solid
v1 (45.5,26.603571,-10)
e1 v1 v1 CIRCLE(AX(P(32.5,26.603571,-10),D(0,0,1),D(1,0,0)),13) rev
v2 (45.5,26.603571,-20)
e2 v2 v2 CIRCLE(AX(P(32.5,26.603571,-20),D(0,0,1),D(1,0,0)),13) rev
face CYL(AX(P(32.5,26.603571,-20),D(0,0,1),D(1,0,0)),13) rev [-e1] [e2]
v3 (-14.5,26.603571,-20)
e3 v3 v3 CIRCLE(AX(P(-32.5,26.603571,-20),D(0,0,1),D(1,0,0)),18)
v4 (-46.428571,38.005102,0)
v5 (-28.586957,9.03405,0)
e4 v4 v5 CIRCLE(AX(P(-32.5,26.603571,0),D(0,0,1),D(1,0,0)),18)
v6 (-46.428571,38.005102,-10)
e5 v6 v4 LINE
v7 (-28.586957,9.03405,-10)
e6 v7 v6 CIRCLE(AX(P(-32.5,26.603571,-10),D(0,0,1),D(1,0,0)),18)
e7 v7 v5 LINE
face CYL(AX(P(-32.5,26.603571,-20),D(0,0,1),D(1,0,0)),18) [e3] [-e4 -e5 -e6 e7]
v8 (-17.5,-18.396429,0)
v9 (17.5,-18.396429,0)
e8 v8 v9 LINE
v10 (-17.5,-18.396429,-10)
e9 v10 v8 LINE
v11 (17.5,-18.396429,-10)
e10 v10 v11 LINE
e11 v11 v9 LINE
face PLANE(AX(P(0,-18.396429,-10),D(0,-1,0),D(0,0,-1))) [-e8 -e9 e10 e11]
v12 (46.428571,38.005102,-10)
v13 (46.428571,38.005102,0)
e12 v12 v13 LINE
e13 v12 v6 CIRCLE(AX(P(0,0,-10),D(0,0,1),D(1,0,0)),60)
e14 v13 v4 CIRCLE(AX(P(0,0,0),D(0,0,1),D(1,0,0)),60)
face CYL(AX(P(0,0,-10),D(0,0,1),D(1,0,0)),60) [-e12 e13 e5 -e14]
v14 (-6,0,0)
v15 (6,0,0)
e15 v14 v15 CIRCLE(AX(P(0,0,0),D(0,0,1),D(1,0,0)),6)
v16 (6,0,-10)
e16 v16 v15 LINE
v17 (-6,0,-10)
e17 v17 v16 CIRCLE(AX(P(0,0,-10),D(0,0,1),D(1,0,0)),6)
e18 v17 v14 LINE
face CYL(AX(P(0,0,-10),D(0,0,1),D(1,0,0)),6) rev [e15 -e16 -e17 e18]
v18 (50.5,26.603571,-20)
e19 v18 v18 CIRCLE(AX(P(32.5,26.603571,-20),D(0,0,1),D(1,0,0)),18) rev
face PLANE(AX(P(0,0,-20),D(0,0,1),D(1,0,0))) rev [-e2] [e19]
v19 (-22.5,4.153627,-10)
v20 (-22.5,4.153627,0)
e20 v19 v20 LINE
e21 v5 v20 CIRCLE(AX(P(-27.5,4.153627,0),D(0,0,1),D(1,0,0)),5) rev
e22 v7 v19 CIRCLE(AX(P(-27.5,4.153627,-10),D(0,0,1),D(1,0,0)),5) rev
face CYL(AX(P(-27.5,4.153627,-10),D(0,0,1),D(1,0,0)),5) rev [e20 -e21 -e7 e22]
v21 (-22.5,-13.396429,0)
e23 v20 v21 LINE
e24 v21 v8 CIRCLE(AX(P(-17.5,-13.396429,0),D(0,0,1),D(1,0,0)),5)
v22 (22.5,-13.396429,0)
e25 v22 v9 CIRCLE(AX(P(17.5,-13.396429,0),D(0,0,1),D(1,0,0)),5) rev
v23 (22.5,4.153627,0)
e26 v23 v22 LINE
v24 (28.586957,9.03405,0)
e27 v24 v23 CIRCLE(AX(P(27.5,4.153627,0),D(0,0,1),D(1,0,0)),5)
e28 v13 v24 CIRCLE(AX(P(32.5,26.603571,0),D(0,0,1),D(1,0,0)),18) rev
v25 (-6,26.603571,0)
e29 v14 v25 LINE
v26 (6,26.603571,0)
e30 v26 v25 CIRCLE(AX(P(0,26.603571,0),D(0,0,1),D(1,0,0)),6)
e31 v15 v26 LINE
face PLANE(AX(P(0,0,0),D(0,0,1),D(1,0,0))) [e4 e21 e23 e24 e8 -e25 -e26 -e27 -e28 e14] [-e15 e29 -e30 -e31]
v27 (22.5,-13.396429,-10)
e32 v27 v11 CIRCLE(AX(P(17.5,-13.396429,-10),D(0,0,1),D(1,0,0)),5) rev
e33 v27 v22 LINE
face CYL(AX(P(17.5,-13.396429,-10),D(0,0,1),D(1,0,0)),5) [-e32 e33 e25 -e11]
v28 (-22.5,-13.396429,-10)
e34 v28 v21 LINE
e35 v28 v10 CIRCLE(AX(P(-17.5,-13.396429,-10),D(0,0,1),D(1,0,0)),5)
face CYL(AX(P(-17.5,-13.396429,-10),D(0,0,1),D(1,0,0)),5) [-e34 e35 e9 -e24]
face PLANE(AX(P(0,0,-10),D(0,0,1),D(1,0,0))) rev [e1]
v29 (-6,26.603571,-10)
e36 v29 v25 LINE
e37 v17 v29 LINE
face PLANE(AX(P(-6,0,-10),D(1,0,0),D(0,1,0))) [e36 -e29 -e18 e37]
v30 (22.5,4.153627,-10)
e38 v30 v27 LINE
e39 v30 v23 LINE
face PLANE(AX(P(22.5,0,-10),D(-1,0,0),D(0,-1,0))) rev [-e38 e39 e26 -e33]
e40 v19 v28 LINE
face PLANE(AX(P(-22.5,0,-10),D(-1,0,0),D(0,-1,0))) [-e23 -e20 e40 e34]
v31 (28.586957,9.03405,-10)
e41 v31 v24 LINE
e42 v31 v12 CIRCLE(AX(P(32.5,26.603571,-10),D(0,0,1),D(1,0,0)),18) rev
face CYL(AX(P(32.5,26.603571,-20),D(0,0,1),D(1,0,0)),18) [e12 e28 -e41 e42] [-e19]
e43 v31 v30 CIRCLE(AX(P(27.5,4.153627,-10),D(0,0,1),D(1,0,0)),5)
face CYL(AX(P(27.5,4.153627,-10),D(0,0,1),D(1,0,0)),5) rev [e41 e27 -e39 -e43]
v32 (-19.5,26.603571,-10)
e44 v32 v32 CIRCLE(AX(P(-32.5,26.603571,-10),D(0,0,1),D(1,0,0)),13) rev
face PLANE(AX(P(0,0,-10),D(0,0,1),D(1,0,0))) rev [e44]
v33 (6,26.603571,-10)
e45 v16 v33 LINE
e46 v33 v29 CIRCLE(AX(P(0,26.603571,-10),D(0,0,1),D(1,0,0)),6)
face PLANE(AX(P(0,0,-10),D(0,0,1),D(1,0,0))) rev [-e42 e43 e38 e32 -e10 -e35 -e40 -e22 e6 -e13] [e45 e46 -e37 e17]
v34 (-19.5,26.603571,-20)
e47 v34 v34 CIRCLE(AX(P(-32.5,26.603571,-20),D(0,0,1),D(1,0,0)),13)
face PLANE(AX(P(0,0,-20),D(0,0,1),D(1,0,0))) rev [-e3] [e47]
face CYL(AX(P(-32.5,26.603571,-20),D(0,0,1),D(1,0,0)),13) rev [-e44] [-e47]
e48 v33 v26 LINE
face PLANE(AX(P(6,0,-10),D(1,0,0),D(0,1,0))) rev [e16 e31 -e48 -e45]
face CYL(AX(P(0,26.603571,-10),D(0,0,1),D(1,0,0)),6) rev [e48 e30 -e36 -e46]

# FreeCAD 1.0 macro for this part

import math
import FreeCAD as App
import Part
import Sketcher
from FreeCAD import Vector

doc = App.newDocument("Part")
body = doc.addObject("PartDesign::Body", "Body")

# Sketch on XY plane
sketch1 = body.newObject("Sketcher::SketchObject", "Sketch")
sketch1.AttachmentSupport = (doc.getObject("XY_Plane"), [""])
sketch1.MapMode = "FlatFace"
sketch1.addGeometry([
    Part.ArcOfCircle(Part.Circle(Vector(-17.5, -13.396429, 0), Vector(0, 0, 1), 5), math.radians(180), math.radians(270)),  # 0
    Part.LineSegment(Vector(-17.5, -18.396429, 0), Vector(17.5, -18.396429, 0)),  # 1
    Part.ArcOfCircle(Part.Circle(Vector(17.5, -13.396429, 0), Vector(0, 0, 1), 5), math.radians(-90), math.radians(0)),  # 2
    Part.LineSegment(Vector(22.5, -13.396429, 0), Vector(22.5, 4.153627, 0)),  # 3
    Part.ArcOfCircle(Part.Circle(Vector(27.5, 4.153627, 0), Vector(0, 0, 1), 5), math.radians(77.444142), math.radians(180)),  # 4
    Part.ArcOfCircle(Part.Circle(Vector(32.5, 26.603571, 0), Vector(0, 0, 1), 18), math.radians(39.302776), math.radians(257.444142)),  # 5
    Part.ArcOfCircle(Part.Circle(Vector(0, 0, 0), Vector(0, 0, 1), 60), math.radians(39.302776), math.radians(140.697224)),  # 6
    Part.ArcOfCircle(Part.Circle(Vector(-32.5, 26.603571, 0), Vector(0, 0, 1), 18), math.radians(0), math.radians(140.697224)),  # 7
    Part.ArcOfCircle(Part.Circle(Vector(-32.5, 26.603571, 0), Vector(0, 0, 1), 18), math.radians(-77.444142), math.radians(0)),  # 8
    Part.ArcOfCircle(Part.Circle(Vector(-27.5, 4.153627, 0), Vector(0, 0, 1), 5), math.radians(0), math.radians(102.555858)),  # 9
    Part.LineSegment(Vector(-22.5, 4.153627, 0), Vector(-22.5, -13.396429, 0)),  # 10
    Part.LineSegment(Vector(6, 26.603571, 0), Vector(6, 0, 0)),  # 11
    Part.ArcOfCircle(Part.Circle(Vector(0, 0, 0), Vector(0, 0, 1), 6), math.radians(180), math.radians(360)),  # 12
    Part.LineSegment(Vector(-6, 0, 0), Vector(-6, 26.603571, 0)),  # 13
    Part.ArcOfCircle(Part.Circle(Vector(0, 26.603571, 0), Vector(0, 0, 1), 6), math.radians(0), math.radians(180)),  # 14
], False)
sketch1.addConstraint([
    Sketcher.Constraint("Tangent", 0, 2, 1, 1),
    Sketcher.Constraint("Tangent", 1, 2, 2, 1),
    Sketcher.Constraint("Tangent", 2, 2, 3, 1),
    Sketcher.Constraint("Tangent", 3, 2, 4, 2),
    Sketcher.Constraint("Tangent", 4, 1, 5, 2),
    Sketcher.Constraint("Tangent", 5, 1, 6, 1),
    Sketcher.Constraint("Tangent", 6, 2, 7, 2),
    Sketcher.Constraint("Tangent", 7, 1, 8, 2),
    Sketcher.Constraint("Tangent", 8, 1, 9, 2),
    Sketcher.Constraint("Tangent", 9, 1, 10, 1),
    Sketcher.Constraint("Tangent", 10, 2, 0, 1),
    Sketcher.Constraint("Tangent", 11, 2, 12, 2),
    Sketcher.Constraint("Tangent", 12, 1, 13, 1),
    Sketcher.Constraint("Tangent", 13, 2, 14, 2),
    Sketcher.Constraint("Tangent", 14, 1, 11, 1),
    Sketcher.Constraint("Horizontal", 1),
    Sketcher.Constraint("Vertical", 3),
    Sketcher.Constraint("Vertical", 10),
    Sketcher.Constraint("Vertical", 11),
    Sketcher.Constraint("Vertical", 13),
    Sketcher.Constraint("Coincident", 6, 3, -1, 1),
    Sketcher.Constraint("Coincident", 12, 3, -1, 1),
    Sketcher.Constraint("Equal", 0, 2),
    Sketcher.Constraint("Equal", 2, 4),
    Sketcher.Constraint("Equal", 5, 7),
    Sketcher.Constraint("Equal", 7, 8),
    Sketcher.Constraint("Equal", 4, 9),
    Sketcher.Constraint("Symmetric", 4, 3, 9, 3, -2),
    Sketcher.Constraint("Horizontal", 8, 3, 14, 3),
    Sketcher.Constraint("Horizontal", 14, 3, 7, 1),
    Sketcher.Constraint("Radius", 0, 5.0),
    Sketcher.Constraint("Radius", 5, 18.0),
    Sketcher.Constraint("Radius", 6, 60.0),
    Sketcher.Constraint("Radius", 12, 6.0),
    Sketcher.Constraint("DistanceX", 1, 1, 1, 2, 35.0),
    Sketcher.Constraint("DistanceX", 4, 3, 5, 3, 5.0),
    Sketcher.Constraint("DistanceY", 2, 3, 5, 3, 40.0),
])
pad1 = body.newObject("PartDesign::Pad", "Pad")
pad1.Profile = sketch1
pad1.Length = 10
pad1.Reversed = True
body2 = doc.addObject("PartDesign::Body", "Body001")

# Sketch on XY plane
sketch2 = body2.newObject("Sketcher::SketchObject", "Sketch001")
sketch2.AttachmentSupport = (doc.getObject("XY_Plane001"), [""])
sketch2.MapMode = "FlatFace"
sketch2.addGeometry(Part.Circle(Vector(32.5, 26.603571, 0), Vector(0, 0, 1), 13), False)
sketch2.addConstraint([
    Sketcher.Constraint("Diameter", 0, 26.0),
    Sketcher.Constraint("DistanceX", -1, 1, 0, 3, 32.5),
    Sketcher.Constraint("DistanceY", -1, 1, 0, 3, 26.603571),
])
pad2 = body2.newObject("PartDesign::Pad", "Pad001")
pad2.Profile = sketch2
pad2.Length = 10
pad2.Reversed = True
body3 = doc.addObject("PartDesign::Body", "Body002")

# Sketch on XY plane
sketch3 = body3.newObject("Sketcher::SketchObject", "Sketch002")
sketch3.AttachmentSupport = (doc.getObject("XY_Plane002"), [""])
sketch3.MapMode = "FlatFace"
sketch3.addGeometry(Part.Circle(Vector(-32.5, 26.603571, 0), Vector(0, 0, 1), 13), False)
sketch3.addConstraint([
    Sketcher.Constraint("Diameter", 0, 26.0),
    Sketcher.Constraint("DistanceX", 0, 3, -1, 1, 32.5),
    Sketcher.Constraint("DistanceY", -1, 1, 0, 3, 26.603571),
])
pad3 = body3.newObject("PartDesign::Pad", "Pad002")
pad3.Profile = sketch3
pad3.Length = 10
pad3.Reversed = True
body.AllowCompound = True
doc.recompute()

boolean = body.newObject("PartDesign::Boolean", "Boolean")
boolean.Type = "Fuse"
boolean.addObjects([body2])
doc.recompute()

boolean2 = body.newObject("PartDesign::Boolean", "Boolean001")
boolean2.Type = "Fuse"
boolean2.addObjects([body3])

# Sketch on XY plane
sketch4 = body.newObject("Sketcher::SketchObject", "Sketch003")
sketch4.AttachmentSupport = (doc.getObject("XY_Plane"), [""])
sketch4.MapMode = "FlatFace"
sketch4.addGeometry([
    Part.Circle(Vector(32.5, 26.603571, 0), Vector(0, 0, 1), 18),
    Part.Circle(Vector(32.5, 26.603571, 0), Vector(0, 0, 1), 13),
    Part.Circle(Vector(-32.5, 26.603571, 0), Vector(0, 0, 1), 18),
    Part.Circle(Vector(-32.5, 26.603571, 0), Vector(0, 0, 1), 13),
], False)
sketch4.addConstraint([
    Sketcher.Constraint("Coincident", 1, 3, 0, 3),
    Sketcher.Constraint("Coincident", 3, 3, 2, 3),
    Sketcher.Constraint("Equal", 0, 2),
    Sketcher.Constraint("Equal", 1, 3),
    Sketcher.Constraint("Symmetric", 0, 3, 2, 3, -2),
    Sketcher.Constraint("Diameter", 0, 36.0),
    Sketcher.Constraint("Diameter", 1, 26.0),
    Sketcher.Constraint("DistanceX", 2, 3, 0, 3, 65.0),
    Sketcher.Constraint("DistanceY", -1, 1, 0, 3, 26.603571),
])
pad4 = body.newObject("PartDesign::Pad", "Pad003")
pad4.Profile = sketch4
pad4.Length = 20
pad4.Reversed = True

doc.recompute()
